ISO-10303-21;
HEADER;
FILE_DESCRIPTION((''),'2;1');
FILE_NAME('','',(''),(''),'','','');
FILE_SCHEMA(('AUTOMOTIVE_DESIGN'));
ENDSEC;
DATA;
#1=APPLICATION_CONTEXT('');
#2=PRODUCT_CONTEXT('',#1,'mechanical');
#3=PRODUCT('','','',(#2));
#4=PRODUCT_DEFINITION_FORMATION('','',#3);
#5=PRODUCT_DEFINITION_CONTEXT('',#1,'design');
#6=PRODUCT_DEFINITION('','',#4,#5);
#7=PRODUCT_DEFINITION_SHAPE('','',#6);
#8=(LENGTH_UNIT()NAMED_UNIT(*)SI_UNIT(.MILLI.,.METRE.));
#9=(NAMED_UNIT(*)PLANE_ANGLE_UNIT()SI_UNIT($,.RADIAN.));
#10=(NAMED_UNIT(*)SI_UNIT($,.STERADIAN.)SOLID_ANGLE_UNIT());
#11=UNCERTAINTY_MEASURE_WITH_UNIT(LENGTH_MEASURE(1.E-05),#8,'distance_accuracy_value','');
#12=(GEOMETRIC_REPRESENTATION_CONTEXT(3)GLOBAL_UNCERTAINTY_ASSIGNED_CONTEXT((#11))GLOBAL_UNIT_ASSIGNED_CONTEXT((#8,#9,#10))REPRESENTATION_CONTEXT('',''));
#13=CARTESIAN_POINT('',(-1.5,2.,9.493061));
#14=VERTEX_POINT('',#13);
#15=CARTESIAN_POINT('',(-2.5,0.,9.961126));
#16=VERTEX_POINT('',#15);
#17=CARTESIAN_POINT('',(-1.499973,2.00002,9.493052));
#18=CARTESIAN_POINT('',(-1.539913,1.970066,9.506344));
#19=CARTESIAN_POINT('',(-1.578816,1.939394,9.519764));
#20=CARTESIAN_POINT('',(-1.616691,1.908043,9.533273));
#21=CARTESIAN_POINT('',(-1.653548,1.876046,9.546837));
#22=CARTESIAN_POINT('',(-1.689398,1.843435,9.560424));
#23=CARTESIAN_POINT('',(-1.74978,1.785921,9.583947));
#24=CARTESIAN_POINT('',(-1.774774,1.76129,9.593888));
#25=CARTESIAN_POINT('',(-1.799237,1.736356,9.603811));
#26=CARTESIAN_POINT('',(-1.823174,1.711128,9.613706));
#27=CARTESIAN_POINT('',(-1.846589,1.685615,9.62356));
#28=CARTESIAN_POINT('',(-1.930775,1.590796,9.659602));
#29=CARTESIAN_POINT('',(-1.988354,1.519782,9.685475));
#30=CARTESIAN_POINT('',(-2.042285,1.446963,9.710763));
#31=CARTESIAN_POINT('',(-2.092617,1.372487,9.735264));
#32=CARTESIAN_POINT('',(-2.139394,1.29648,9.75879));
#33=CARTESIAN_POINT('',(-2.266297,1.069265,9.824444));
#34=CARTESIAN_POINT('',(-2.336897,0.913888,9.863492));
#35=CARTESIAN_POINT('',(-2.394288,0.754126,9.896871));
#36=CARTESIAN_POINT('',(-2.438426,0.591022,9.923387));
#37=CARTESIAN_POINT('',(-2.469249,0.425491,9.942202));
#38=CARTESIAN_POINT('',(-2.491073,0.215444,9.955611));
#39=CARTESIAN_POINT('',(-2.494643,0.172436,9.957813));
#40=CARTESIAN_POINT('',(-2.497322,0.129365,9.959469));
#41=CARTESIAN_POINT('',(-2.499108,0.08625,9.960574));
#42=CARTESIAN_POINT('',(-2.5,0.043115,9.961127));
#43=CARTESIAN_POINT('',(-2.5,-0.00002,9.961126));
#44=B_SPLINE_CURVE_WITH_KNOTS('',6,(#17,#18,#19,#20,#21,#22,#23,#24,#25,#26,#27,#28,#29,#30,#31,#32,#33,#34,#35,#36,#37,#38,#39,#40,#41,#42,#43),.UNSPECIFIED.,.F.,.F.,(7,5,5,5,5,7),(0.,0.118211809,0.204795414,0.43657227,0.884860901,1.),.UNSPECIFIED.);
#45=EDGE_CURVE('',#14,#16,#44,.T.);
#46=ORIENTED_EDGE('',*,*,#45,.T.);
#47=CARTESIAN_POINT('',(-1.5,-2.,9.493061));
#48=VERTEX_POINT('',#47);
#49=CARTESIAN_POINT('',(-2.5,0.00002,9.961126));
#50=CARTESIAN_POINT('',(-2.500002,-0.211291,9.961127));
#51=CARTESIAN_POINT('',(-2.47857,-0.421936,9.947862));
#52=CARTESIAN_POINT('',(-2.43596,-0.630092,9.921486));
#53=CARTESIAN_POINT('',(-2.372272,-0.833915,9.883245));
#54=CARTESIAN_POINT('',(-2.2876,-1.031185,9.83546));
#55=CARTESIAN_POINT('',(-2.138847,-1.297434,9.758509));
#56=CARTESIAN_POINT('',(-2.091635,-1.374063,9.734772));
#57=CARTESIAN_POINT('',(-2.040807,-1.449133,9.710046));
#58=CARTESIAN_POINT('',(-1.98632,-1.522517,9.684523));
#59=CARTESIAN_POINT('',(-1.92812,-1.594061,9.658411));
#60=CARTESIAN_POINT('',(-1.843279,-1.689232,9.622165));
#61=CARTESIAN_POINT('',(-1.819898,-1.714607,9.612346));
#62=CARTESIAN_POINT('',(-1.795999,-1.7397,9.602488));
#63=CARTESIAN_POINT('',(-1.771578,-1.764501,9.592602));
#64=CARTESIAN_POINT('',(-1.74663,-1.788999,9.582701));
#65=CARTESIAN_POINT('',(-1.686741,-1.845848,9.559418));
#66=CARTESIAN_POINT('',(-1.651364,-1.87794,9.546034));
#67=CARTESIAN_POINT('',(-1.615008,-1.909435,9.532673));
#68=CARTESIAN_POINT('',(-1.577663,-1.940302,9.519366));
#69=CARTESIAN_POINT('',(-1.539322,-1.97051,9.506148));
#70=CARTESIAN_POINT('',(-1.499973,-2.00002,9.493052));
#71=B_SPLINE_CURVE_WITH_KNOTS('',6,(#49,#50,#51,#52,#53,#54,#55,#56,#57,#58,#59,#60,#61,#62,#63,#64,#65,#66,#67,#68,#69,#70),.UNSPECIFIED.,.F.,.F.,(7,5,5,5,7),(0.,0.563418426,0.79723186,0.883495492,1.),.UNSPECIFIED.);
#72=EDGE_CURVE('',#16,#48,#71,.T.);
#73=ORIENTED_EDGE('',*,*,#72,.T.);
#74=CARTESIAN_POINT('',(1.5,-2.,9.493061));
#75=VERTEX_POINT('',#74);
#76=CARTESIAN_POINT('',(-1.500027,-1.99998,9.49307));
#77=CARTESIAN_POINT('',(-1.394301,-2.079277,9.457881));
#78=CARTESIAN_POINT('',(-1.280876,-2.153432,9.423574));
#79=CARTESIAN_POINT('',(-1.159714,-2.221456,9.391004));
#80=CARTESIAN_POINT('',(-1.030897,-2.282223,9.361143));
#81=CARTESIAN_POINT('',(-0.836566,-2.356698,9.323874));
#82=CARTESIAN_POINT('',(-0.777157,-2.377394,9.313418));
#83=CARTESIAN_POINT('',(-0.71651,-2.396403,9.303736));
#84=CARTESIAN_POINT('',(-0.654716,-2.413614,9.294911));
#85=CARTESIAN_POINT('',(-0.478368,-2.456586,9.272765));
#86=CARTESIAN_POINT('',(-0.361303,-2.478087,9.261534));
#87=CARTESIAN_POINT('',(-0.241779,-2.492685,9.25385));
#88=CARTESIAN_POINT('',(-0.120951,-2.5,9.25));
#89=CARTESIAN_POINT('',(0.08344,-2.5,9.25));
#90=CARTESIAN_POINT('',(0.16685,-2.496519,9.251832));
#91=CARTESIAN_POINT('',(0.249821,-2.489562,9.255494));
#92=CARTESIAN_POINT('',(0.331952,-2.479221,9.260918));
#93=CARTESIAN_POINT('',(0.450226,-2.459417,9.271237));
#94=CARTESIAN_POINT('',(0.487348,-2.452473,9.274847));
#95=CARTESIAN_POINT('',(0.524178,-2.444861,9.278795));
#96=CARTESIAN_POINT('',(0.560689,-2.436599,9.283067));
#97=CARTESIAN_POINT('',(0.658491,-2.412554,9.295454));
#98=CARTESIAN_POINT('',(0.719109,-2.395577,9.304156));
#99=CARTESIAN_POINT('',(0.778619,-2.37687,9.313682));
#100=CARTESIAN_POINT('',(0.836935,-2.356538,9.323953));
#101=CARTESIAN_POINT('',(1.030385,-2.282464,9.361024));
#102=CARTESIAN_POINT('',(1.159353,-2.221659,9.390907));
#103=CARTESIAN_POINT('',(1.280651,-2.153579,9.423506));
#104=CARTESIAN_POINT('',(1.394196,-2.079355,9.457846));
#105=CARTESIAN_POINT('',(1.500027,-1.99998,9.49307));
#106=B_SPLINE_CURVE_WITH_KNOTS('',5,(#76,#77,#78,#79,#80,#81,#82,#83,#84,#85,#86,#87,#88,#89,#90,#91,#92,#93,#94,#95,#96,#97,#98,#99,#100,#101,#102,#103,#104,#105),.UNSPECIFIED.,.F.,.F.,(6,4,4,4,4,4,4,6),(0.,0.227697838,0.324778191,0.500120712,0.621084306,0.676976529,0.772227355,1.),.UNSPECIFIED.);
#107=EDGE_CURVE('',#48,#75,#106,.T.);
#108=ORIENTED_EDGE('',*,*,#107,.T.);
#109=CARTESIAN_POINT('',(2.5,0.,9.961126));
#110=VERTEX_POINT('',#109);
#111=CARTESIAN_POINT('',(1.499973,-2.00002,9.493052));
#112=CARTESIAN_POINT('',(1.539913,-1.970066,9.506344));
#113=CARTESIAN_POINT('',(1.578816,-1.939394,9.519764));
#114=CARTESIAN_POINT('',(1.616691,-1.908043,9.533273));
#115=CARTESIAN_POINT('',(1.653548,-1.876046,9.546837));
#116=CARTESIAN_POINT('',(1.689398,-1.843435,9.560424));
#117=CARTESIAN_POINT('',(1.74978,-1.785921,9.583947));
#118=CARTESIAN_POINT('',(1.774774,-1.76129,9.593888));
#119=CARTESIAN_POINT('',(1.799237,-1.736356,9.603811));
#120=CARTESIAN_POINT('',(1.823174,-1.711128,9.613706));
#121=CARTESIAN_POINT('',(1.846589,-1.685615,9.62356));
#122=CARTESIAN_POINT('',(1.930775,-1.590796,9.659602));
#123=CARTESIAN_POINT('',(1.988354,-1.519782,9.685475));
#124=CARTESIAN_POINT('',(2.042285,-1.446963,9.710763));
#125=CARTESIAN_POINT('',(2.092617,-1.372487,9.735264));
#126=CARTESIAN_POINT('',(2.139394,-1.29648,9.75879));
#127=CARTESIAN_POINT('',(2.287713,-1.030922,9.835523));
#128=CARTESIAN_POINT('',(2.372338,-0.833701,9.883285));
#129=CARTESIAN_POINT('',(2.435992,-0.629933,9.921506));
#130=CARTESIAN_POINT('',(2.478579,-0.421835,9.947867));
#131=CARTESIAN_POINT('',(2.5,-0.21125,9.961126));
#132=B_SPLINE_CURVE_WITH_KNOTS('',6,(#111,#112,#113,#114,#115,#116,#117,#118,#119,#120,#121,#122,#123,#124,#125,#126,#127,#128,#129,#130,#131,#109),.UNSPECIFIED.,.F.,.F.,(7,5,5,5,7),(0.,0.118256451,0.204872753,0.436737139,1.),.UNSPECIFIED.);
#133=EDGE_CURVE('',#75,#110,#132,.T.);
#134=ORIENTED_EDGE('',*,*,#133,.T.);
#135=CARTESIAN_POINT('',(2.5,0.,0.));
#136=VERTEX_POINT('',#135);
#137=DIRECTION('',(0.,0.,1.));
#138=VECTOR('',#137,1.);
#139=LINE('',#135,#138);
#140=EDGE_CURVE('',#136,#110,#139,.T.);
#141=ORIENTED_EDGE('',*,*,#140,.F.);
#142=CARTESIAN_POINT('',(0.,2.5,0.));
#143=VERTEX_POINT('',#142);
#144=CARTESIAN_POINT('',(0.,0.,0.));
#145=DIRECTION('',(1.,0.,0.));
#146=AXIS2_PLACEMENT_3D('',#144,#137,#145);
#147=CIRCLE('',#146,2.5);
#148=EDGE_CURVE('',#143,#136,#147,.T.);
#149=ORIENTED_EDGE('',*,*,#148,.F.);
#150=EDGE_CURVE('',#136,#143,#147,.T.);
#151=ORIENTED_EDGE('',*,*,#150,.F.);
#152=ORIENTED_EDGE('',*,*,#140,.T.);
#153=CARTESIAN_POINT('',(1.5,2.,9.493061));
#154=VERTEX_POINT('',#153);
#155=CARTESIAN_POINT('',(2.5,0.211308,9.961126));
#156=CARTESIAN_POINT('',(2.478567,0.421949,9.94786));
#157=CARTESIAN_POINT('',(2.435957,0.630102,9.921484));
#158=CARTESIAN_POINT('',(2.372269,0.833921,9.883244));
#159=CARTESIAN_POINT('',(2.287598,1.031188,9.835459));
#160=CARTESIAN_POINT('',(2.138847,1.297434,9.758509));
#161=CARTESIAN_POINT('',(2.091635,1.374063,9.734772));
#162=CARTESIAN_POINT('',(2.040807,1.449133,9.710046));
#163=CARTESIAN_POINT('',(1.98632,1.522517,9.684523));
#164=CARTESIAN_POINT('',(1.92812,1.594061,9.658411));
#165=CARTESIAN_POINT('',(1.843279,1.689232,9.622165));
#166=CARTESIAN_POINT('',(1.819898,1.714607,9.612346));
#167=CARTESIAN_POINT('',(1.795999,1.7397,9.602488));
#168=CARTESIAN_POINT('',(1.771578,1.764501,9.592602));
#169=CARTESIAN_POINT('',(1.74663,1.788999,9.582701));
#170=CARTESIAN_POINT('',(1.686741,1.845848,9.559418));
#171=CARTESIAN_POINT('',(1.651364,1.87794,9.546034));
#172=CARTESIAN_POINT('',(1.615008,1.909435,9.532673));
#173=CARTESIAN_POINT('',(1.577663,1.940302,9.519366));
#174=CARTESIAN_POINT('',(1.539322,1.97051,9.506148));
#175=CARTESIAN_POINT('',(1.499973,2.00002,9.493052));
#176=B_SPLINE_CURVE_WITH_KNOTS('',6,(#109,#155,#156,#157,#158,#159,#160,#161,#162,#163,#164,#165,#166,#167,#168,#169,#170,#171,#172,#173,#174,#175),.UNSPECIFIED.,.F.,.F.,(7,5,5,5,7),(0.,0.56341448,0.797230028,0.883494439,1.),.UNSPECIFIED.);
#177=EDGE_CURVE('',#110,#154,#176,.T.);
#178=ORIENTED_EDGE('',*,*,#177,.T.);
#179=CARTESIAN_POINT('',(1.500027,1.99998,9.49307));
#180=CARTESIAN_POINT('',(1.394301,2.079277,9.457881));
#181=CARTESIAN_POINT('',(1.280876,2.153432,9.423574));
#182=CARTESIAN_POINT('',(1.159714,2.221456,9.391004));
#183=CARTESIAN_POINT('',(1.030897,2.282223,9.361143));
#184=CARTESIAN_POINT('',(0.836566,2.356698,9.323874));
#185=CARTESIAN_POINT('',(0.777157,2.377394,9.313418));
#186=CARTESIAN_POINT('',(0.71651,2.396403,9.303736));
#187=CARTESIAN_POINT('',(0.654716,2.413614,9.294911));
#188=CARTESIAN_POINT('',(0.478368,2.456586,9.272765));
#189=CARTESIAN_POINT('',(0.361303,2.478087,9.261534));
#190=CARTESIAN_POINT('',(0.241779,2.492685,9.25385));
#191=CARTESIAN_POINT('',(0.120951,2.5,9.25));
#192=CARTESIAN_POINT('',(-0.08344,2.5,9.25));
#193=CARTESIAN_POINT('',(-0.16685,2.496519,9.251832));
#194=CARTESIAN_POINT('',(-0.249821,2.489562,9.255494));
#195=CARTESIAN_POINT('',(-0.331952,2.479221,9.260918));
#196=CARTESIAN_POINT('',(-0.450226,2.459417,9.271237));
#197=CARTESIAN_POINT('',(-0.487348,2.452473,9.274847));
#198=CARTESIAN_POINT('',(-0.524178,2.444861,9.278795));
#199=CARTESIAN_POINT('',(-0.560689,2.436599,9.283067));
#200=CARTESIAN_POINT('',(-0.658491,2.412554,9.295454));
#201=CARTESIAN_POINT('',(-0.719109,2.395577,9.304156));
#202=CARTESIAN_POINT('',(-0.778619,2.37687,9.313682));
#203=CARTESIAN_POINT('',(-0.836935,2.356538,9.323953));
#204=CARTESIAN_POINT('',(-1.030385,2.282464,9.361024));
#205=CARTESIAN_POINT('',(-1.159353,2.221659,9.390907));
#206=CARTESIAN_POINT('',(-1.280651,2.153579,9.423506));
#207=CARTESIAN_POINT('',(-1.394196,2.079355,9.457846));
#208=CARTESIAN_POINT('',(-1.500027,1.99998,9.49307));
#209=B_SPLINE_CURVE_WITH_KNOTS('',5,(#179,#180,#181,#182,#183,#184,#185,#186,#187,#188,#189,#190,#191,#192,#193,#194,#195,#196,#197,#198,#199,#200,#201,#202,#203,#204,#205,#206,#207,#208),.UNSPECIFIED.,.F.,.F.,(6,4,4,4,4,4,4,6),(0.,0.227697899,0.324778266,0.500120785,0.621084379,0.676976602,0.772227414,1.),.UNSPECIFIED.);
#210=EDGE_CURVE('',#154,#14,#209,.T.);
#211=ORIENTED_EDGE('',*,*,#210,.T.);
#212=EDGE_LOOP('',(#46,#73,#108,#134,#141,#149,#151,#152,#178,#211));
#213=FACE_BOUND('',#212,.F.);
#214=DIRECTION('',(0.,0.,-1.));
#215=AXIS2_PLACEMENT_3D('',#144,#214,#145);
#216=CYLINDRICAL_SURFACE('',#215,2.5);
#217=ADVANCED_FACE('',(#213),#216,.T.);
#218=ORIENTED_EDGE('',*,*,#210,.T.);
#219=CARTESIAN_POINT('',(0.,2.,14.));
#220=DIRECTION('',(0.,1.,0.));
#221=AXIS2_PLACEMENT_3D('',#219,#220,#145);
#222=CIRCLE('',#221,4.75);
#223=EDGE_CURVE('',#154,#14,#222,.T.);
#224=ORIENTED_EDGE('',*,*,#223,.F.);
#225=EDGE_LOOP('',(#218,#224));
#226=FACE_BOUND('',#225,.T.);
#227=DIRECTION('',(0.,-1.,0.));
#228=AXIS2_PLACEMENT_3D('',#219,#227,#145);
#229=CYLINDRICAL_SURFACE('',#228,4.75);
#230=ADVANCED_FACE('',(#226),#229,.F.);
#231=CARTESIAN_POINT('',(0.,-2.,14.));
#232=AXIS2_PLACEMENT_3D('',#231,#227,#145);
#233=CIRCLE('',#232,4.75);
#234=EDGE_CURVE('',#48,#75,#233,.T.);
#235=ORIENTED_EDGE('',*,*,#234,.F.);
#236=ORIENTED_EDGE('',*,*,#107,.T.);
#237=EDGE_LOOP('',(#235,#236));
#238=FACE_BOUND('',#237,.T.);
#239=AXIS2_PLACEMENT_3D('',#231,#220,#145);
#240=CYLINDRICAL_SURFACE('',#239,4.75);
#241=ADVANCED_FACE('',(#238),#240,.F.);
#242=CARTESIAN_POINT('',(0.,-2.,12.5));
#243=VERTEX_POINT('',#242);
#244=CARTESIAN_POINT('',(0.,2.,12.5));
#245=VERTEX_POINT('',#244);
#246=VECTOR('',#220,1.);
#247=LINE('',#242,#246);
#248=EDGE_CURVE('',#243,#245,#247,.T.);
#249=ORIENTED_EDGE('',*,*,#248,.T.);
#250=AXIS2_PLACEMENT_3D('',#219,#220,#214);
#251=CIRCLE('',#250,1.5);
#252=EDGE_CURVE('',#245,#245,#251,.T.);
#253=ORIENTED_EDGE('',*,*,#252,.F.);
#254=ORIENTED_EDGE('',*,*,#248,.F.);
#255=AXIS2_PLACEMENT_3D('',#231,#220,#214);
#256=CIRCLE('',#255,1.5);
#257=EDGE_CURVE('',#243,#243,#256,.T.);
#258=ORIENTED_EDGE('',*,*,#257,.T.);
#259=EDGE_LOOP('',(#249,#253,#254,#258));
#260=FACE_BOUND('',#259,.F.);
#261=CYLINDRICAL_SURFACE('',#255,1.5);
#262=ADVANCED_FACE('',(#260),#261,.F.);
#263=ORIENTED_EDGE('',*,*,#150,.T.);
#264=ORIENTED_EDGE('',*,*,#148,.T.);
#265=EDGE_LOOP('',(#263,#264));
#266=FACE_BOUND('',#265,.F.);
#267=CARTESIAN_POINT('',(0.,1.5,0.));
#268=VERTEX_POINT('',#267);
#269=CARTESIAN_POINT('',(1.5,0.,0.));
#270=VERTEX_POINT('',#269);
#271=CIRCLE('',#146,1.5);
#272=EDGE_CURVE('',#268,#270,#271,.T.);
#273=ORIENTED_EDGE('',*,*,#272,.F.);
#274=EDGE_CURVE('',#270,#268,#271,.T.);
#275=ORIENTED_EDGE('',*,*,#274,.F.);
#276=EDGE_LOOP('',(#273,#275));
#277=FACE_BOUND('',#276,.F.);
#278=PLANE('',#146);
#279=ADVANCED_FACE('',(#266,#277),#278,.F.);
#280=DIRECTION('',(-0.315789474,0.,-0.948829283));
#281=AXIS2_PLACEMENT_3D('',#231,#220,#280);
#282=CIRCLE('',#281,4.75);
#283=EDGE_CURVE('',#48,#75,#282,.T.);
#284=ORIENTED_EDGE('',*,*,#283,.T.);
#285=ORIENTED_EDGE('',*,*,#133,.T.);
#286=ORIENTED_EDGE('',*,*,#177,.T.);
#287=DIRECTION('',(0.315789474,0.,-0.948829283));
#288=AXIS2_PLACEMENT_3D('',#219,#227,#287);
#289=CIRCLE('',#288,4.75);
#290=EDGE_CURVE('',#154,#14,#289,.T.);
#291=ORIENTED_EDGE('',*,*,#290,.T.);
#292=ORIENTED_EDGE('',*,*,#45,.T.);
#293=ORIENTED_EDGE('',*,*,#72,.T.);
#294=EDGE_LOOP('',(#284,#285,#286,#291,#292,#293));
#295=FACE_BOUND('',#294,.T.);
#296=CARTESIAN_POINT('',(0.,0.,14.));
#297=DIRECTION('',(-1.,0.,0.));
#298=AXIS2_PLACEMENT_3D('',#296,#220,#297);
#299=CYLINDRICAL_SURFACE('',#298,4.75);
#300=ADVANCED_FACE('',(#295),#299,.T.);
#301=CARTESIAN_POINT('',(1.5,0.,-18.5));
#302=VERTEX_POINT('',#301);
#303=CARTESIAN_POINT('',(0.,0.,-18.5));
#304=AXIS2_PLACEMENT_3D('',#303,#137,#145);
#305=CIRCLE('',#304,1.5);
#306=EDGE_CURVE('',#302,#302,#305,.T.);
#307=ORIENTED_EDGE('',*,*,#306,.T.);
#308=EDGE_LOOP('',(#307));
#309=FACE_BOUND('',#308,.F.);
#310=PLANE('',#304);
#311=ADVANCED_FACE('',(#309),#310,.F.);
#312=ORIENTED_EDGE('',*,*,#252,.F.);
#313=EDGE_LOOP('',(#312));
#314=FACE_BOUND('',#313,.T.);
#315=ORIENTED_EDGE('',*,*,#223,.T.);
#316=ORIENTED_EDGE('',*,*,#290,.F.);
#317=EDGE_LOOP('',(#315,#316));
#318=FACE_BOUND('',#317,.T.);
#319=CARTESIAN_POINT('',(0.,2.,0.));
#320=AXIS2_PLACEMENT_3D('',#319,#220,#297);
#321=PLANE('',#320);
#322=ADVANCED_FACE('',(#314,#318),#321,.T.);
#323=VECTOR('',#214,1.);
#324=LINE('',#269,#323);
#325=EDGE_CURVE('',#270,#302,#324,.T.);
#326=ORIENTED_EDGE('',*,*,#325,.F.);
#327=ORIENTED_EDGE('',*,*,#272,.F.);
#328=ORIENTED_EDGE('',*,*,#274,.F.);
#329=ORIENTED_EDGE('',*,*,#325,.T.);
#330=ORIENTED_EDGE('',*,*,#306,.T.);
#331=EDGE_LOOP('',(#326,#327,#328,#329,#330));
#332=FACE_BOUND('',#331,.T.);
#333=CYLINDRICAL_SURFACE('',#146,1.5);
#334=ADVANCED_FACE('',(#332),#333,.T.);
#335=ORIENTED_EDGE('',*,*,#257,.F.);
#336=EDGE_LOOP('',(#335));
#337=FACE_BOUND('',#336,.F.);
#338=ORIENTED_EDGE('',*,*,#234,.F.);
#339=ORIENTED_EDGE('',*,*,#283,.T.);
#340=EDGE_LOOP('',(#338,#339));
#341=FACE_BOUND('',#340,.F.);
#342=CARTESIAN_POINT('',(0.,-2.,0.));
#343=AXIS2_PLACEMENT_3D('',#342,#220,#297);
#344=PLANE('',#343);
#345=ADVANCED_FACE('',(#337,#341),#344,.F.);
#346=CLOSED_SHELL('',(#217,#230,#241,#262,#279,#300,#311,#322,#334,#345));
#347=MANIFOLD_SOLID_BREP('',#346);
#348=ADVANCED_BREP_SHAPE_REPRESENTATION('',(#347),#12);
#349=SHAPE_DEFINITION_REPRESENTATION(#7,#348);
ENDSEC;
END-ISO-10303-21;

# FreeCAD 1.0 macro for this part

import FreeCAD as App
import Part
import Sketcher
from FreeCAD import Vector
Q = App.Units.Quantity

doc = App.newDocument("Part")
params = doc.addObject("Spreadsheet::Sheet", "Params")
for row, (alias, value) in enumerate([
    ("sketch1_diameter", "5 mm"),
    ("pad1_length", "14 mm"),
    ("sketch2_diameter", "3 mm"),
    ("pad2_length", "18.5 mm"),
    ("sketch3_diameter", "9.5 mm"),
    ("pad3_length", "4 mm"),
    ("sketch4_diameter", "9.5 mm"),
    ("pocket1_length", "4 mm"),
    ("sketch5_diameter", "9.5 mm"),
    ("pocket2_length", "4 mm"),
    ("sketch6_diameter", "3 mm"),
    ("hole_diameter", "3 mm"),
], start=1):
    params.set(f"A{row}", alias)
    params.set(f"B{row}", "=" + value)
    params.setAlias(f"B{row}", alias)

body = doc.addObject("PartDesign::Body", "Body")

# Sketch on XY plane
sketch1 = doc.addObject("Sketcher::SketchObject", "Sketch")
body.addObject(sketch1)
sketch1.AttachmentSupport = (doc.XY_Plane, [""])
sketch1.MapMode = "FlatFace"
sketch1.addGeometry(Part.Circle(Vector(0, 0, 0), Vector(0, 0, 1), 2.5), False)
sketch1.addConstraint(Sketcher.Constraint("Coincident", 0, 3, -1, 1))
sketch1.addConstraint(Sketcher.Constraint("Diameter", 0, Q("5 mm")))
sketch1.setExpression("Constraints[1]", "Params.sketch1_diameter")
pad1 = doc.addObject("PartDesign::Pad", "Pad")
body.addObject(pad1)
pad1.Profile = sketch1
pad1.setExpression("Length", "Params.pad1_length")

# Sketch on XY plane
sketch2 = doc.addObject("Sketcher::SketchObject", "Sketch001")
body.addObject(sketch2)
sketch2.AttachmentSupport = (doc.XY_Plane, [""])
sketch2.MapMode = "FlatFace"
sketch2.addGeometry(Part.Circle(Vector(0, 0, 0), Vector(0, 0, 1), 1.5), False)
sketch2.addConstraint(Sketcher.Constraint("Coincident", 0, 3, -1, 1))
sketch2.addConstraint(Sketcher.Constraint("Diameter", 0, Q("3 mm")))
sketch2.setExpression("Constraints[1]", "Params.sketch2_diameter")
pad2 = doc.addObject("PartDesign::Pad", "Pad001")
body.addObject(pad2)
pad2.Profile = sketch2
pad2.setExpression("Length", "Params.pad2_length")
pad2.Reversed = True

# Sketch on XZ plane
sketch3 = doc.addObject("Sketcher::SketchObject", "Sketch002")
body.addObject(sketch3)
sketch3.AttachmentSupport = (doc.XZ_Plane, [""])
sketch3.MapMode = "FlatFace"
sketch3.addGeometry(Part.Circle(Vector(0, 14, 0), Vector(0, 0, 1), 4.8), False)
sketch3.addConstraint(Sketcher.Constraint("PointOnObject", 0, 3, -2))
sketch3.addConstraint(Sketcher.Constraint("Diameter", 0, Q("9.5 mm")))
sketch3.addConstraint(Sketcher.Constraint("DistanceY", -1, 1, 0, 3, Q("14 mm")))
sketch3.setExpression("Constraints[1]", "Params.sketch3_diameter")
pad3 = doc.addObject("PartDesign::Pad", "Pad002")
body.addObject(pad3)
pad3.Profile = sketch3
pad3.setExpression("Length", "Params.pad3_length")
pad3.Midplane = True

# Sketch on XZ plane
sketch4 = doc.addObject("Sketcher::SketchObject", "Sketch003")
body.addObject(sketch4)
sketch4.AttachmentSupport = (doc.XZ_Plane, [""])
sketch4.MapMode = "FlatFace"
sketch4.AttachmentOffset = App.Placement(Vector(0, 0, -2), App.Rotation())
sketch4.addGeometry(Part.Circle(Vector(0, 14, 0), Vector(0, 0, 1), 4.8), False)
sketch4.addConstraint(Sketcher.Constraint("PointOnObject", 0, 3, -2))
sketch4.addConstraint(Sketcher.Constraint("Diameter", 0, Q("9.5 mm")))
sketch4.addConstraint(Sketcher.Constraint("DistanceY", -1, 1, 0, 3, Q("14 mm")))
sketch4.setExpression("Constraints[1]", "Params.sketch4_diameter")
pocket1 = doc.addObject("PartDesign::Pocket", "Pocket")
body.addObject(pocket1)
pocket1.Profile = sketch4
pocket1.setExpression("Length", "Params.pocket1_length")

# Sketch on XZ plane
sketch5 = doc.addObject("Sketcher::SketchObject", "Sketch004")
body.addObject(sketch5)
sketch5.AttachmentSupport = (doc.XZ_Plane, [""])
sketch5.MapMode = "FlatFace"
sketch5.AttachmentOffset = App.Placement(Vector(0, 0, 2), App.Rotation())
sketch5.addGeometry(Part.Circle(Vector(0, 14, 0), Vector(0, 0, 1), 4.8), False)
sketch5.addConstraint(Sketcher.Constraint("PointOnObject", 0, 3, -2))
sketch5.addConstraint(Sketcher.Constraint("Diameter", 0, Q("9.5 mm")))
sketch5.addConstraint(Sketcher.Constraint("DistanceY", -1, 1, 0, 3, Q("14 mm")))
sketch5.setExpression("Constraints[1]", "Params.sketch5_diameter")
pocket2 = doc.addObject("PartDesign::Pocket", "Pocket001")
body.addObject(pocket2)
pocket2.Profile = sketch5
pocket2.setExpression("Length", "Params.pocket2_length")
pocket2.Reversed = True

# Sketch on XZ plane
sketch6 = doc.addObject("Sketcher::SketchObject", "Sketch005")
body.addObject(sketch6)
sketch6.AttachmentSupport = (doc.XZ_Plane, [""])
sketch6.MapMode = "FlatFace"
sketch6.AttachmentOffset = App.Placement(Vector(0, 0, 2), App.Rotation())
sketch6.addGeometry(Part.Circle(Vector(0, 14, 0), Vector(0, 0, 1), 1.5), False)
sketch6.addConstraint(Sketcher.Constraint("PointOnObject", 0, 3, -2))
sketch6.addConstraint(Sketcher.Constraint("Diameter", 0, Q("3 mm")))
sketch6.addConstraint(Sketcher.Constraint("DistanceY", -1, 1, 0, 3, Q("14 mm")))
sketch6.setExpression("Constraints[1]", "Params.sketch6_diameter")
doc.recompute()
hole = doc.addObject("PartDesign::Hole", "Hole")
body.addObject(hole)
hole.Profile = sketch6
hole.ThreadType = "None"
hole.setExpression("Diameter", "Params.hole_diameter")
hole.DepthType = "ThroughAll"

doc.recompute()
